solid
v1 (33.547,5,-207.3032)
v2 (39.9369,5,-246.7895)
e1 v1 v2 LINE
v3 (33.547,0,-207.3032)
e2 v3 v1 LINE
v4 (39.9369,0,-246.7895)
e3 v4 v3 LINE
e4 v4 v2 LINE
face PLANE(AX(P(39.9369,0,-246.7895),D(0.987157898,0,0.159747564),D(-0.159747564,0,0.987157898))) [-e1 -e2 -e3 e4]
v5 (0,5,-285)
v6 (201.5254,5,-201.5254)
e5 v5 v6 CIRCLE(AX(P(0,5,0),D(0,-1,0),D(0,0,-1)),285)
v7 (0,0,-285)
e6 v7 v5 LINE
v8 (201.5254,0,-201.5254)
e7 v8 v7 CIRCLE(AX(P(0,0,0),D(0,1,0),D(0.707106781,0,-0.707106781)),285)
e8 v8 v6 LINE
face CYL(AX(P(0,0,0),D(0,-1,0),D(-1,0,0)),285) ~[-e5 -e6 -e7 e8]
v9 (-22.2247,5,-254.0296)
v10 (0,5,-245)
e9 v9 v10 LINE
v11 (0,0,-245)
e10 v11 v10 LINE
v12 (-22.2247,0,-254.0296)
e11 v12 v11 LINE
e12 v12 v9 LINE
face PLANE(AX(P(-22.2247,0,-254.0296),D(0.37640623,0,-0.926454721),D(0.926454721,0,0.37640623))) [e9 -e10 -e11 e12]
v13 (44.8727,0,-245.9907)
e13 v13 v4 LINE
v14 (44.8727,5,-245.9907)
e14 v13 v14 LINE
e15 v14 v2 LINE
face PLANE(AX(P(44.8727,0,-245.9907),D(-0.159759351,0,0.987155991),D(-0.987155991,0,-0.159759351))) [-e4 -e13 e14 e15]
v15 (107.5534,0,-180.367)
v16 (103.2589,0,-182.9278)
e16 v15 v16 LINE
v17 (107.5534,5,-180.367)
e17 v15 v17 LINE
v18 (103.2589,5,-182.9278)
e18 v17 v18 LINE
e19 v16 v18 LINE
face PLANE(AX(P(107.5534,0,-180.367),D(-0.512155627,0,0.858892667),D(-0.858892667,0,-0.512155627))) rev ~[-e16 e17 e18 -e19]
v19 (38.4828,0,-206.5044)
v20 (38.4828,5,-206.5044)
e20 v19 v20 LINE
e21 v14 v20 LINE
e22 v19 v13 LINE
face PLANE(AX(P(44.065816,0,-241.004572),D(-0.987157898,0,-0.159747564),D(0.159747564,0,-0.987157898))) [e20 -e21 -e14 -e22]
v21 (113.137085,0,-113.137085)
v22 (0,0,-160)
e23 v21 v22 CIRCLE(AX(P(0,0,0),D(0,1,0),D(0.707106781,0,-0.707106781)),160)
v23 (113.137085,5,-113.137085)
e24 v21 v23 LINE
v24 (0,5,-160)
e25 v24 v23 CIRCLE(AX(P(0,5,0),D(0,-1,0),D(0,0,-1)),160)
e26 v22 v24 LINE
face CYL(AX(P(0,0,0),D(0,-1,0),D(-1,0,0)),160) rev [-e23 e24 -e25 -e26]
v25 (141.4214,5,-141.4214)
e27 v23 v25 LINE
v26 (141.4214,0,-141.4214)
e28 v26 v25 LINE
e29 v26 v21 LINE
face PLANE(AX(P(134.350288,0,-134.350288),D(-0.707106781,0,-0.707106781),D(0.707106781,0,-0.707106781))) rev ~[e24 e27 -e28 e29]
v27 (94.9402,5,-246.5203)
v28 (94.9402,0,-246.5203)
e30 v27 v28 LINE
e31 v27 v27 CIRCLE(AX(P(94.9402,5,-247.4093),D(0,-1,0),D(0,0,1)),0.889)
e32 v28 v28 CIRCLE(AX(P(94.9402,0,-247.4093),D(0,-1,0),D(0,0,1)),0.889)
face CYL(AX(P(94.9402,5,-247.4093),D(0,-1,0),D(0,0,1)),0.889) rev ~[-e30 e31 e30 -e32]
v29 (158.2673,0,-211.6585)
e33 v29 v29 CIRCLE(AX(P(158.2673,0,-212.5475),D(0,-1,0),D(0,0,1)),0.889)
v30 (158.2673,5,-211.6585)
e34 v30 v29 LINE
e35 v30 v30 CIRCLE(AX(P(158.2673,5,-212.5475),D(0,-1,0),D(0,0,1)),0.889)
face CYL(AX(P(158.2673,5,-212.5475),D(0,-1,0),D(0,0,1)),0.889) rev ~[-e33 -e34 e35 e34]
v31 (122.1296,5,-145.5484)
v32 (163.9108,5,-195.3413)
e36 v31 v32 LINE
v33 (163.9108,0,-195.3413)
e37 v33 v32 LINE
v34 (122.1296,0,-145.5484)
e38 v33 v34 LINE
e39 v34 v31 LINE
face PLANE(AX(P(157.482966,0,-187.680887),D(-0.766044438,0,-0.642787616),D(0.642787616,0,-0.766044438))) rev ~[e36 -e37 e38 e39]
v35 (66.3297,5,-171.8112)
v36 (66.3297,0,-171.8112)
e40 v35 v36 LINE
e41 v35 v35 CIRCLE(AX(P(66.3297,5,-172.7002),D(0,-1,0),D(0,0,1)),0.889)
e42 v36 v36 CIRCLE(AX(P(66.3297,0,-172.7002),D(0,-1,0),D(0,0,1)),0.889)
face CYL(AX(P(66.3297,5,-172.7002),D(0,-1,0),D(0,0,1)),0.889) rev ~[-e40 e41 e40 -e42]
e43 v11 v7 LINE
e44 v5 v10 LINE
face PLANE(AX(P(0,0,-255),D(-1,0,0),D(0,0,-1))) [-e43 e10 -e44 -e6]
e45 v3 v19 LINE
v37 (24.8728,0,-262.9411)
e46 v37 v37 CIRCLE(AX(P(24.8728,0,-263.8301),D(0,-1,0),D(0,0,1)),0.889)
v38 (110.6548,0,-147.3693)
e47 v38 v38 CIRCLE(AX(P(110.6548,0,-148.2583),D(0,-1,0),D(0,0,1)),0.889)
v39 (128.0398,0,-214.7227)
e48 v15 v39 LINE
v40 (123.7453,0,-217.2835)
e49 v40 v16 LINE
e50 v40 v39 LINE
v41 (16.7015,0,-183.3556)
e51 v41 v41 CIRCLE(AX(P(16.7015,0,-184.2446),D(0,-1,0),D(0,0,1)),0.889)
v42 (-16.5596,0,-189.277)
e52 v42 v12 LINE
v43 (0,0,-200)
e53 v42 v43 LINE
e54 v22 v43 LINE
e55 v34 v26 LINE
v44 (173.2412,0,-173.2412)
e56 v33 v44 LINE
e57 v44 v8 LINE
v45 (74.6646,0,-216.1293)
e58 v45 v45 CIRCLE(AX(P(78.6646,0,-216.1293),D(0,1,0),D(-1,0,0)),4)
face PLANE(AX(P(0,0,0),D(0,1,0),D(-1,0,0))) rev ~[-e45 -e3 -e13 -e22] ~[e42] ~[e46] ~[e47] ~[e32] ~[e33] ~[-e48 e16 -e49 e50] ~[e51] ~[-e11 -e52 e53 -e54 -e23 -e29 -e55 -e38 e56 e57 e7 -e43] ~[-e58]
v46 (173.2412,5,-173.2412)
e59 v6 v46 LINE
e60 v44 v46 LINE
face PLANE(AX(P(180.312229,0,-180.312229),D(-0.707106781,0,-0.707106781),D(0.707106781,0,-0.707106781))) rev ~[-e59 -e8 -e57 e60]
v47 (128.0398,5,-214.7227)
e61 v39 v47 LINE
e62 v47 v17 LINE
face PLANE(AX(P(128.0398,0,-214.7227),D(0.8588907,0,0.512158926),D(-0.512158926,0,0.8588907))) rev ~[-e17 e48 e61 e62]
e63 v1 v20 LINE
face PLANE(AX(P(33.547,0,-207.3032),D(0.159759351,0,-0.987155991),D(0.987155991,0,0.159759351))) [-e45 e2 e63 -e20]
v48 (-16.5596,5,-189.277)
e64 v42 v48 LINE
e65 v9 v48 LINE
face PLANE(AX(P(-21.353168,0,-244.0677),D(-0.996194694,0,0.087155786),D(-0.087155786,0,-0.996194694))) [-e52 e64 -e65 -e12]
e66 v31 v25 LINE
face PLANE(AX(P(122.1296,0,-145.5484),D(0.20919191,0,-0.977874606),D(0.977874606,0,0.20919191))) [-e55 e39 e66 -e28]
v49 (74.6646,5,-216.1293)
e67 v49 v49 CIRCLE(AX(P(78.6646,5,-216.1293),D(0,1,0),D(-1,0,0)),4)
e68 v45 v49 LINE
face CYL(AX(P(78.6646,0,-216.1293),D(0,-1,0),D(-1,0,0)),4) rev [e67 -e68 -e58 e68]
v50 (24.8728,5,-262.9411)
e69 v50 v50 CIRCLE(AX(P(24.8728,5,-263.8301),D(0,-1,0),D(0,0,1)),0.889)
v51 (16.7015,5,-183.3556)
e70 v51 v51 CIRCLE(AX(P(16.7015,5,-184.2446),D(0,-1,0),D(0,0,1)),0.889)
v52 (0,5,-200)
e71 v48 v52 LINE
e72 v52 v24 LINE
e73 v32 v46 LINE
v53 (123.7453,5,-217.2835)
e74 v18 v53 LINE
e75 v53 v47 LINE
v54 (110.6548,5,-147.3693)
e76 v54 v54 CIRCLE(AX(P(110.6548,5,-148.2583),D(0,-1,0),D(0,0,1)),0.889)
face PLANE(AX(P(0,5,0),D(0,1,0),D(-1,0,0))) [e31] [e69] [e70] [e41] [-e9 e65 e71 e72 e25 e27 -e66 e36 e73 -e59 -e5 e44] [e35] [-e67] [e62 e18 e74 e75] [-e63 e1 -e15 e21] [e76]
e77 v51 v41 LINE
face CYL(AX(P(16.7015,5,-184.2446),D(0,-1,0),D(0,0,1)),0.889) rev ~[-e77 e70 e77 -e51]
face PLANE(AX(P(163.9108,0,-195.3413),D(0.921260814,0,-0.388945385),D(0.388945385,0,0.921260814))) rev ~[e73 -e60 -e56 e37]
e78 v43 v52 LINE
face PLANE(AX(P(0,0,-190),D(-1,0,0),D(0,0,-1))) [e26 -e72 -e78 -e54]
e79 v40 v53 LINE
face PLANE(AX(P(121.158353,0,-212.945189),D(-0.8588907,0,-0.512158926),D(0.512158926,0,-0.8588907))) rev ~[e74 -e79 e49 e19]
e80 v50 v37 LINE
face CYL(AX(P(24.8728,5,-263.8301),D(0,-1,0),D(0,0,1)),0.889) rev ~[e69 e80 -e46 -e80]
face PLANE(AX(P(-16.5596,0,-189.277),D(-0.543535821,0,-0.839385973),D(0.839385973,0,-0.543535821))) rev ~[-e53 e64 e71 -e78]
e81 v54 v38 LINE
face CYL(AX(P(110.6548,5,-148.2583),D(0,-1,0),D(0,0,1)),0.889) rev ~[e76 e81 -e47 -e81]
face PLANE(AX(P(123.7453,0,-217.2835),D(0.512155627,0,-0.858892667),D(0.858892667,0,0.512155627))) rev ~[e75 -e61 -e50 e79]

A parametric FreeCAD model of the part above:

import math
import FreeCAD as App
import Part
import Sketcher

V = App.Vector
Q = App.Units.Quantity

doc = App.newDocument("Part")
body = doc.addObject("PartDesign::Body", "Body")

# Sketch on XZ plane
sketch1 = body.newObject("Sketcher::SketchObject", "Sketch")
sketch1.AttachmentSupport = (doc.getObject("XZ_Plane"), [""])
sketch1.MapMode = "FlatFace"
sketch1.addGeometry([
    Part.ArcOfCircle(Part.Circle(V(0, 0, 0), V(0, 0, 1), 285), math.radians(-90), math.radians(-45)),  # 0
    Part.LineSegment(V(0, -285, 0), V(0, -245, 0)),  # 1
    Part.LineSegment(V(0, -245, 0), V(-22.2247, -254.0296, 0)),  # 2
    Part.LineSegment(V(-22.2247, -254.0296, 0), V(-16.5596, -189.277, 0)),  # 3
    Part.LineSegment(V(-16.5596, -189.277, 0), V(0, -200, 0)),  # 4
    Part.LineSegment(V(0, -200, 0), V(0, -160, 0)),  # 5
    Part.ArcOfCircle(Part.Circle(V(0, 0, 0), V(0, 0, 1), 160), math.radians(-90), math.radians(-45)),  # 6
    Part.LineSegment(V(113.137085, -113.137085, 0), V(141.4214, -141.4214, 0)),  # 7
    Part.LineSegment(V(141.4214, -141.4214, 0), V(122.1296, -145.5484, 0)),  # 8
    Part.LineSegment(V(122.1296, -145.5484, 0), V(163.9108, -195.3413, 0)),  # 9
    Part.LineSegment(V(163.9108, -195.3413, 0), V(173.2412, -173.2412, 0)),  # 10
    Part.LineSegment(V(173.2412, -173.2412, 0), V(201.5254, -201.5254, 0)),  # 11
    Part.LineSegment(V(128.0398, -214.7227, 0), V(107.5534, -180.367, 0)),  # 12
    Part.LineSegment(V(107.5534, -180.367, 0), V(103.2589, -182.9278, 0)),  # 13
    Part.LineSegment(V(103.2589, -182.9278, 0), V(123.7453, -217.2835, 0)),  # 14
    Part.LineSegment(V(123.7453, -217.2835, 0), V(128.0398, -214.7227, 0)),  # 15
    Part.LineSegment(V(44.8727, -245.9907, 0), V(38.4828, -206.5044, 0)),  # 16
    Part.LineSegment(V(38.4828, -206.5044, 0), V(33.547, -207.3032, 0)),  # 17
    Part.LineSegment(V(33.547, -207.3032, 0), V(39.9369, -246.7895, 0)),  # 18
    Part.LineSegment(V(39.9369, -246.7895, 0), V(44.8727, -245.9907, 0)),  # 19
    Part.Circle(V(78.6646, -216.1293, 0), V(0, 0, 1), 4),  # 20
], False)
sketch1.addConstraint([
    Sketcher.Constraint("Coincident", 0, 1, 1, 1),
    Sketcher.Constraint("Coincident", 1, 2, 2, 1),
    Sketcher.Constraint("Coincident", 2, 2, 3, 1),
    Sketcher.Constraint("Coincident", 3, 2, 4, 1),
    Sketcher.Constraint("Coincident", 4, 2, 5, 1),
    Sketcher.Constraint("Coincident", 5, 2, 6, 1),
    Sketcher.Constraint("Coincident", 6, 2, 7, 1),
    Sketcher.Constraint("Coincident", 7, 2, 8, 1),
    Sketcher.Constraint("Coincident", 8, 2, 9, 1),
    Sketcher.Constraint("Coincident", 9, 2, 10, 1),
    Sketcher.Constraint("Coincident", 10, 2, 11, 1),
    Sketcher.Constraint("Coincident", 11, 2, 0, 2),
    Sketcher.Constraint("Coincident", 12, 2, 13, 1),
    Sketcher.Constraint("Coincident", 13, 2, 14, 1),
    Sketcher.Constraint("Coincident", 14, 2, 15, 1),
    Sketcher.Constraint("Coincident", 15, 2, 12, 1),
    Sketcher.Constraint("Coincident", 16, 2, 17, 1),
    Sketcher.Constraint("Coincident", 17, 2, 18, 1),
    Sketcher.Constraint("Coincident", 18, 2, 19, 1),
    Sketcher.Constraint("Coincident", 19, 2, 16, 1),
    Sketcher.Constraint("Vertical", 1),
    Sketcher.Constraint("Vertical", 5),
    Sketcher.Constraint("Coincident", 0, 3, -1, 1),
    Sketcher.Constraint("Coincident", 6, 3, -1, 1),
    Sketcher.Constraint("PointOnObject", 0, 1, -2),
    Sketcher.Constraint("PointOnObject", 4, 2, -2),
    Sketcher.Constraint("Diameter", 20, Q("8 mm")),
    Sketcher.Constraint("Radius", 0, Q("285 mm")),
    Sketcher.Constraint("Radius", 6, Q("160 mm")),
    Sketcher.Constraint("DistanceY", 1, 1, 1, 2, Q("40 mm")),
    Sketcher.Constraint("DistanceY", 5, 1, 5, 2, Q("40 mm")),
    Sketcher.Constraint("Distance", 7, Q("40 mm")),
    Sketcher.Constraint("Distance", 11, Q("40 mm")),
    Sketcher.Constraint("Distance", 12, Q("40 mm")),
    Sketcher.Constraint("Distance", 13, Q("5 mm")),
    Sketcher.Constraint("Distance", 14, Q("40 mm")),
    Sketcher.Constraint("Distance", 15, Q("5 mm")),
    Sketcher.Constraint("Distance", 16, Q("40 mm")),
    Sketcher.Constraint("Distance", 17, Q("5 mm")),
    Sketcher.Constraint("Distance", 18, Q("40 mm")),
    Sketcher.Constraint("Distance", 19, Q("5 mm")),
    Sketcher.Constraint("Distance", 3, Q("65 mm")),
    Sketcher.Constraint("Distance", 9, Q("65 mm")),
    Sketcher.Constraint("DistanceY", 9, 2, 10, 2, Q("22.1 mm")),
    Sketcher.Constraint("DistanceY", 3, 2, 6, 2, Q("76.14 mm")),
    Sketcher.Constraint("DistanceY", 9, 2, 7, 2, Q("53.92 mm")),
    Sketcher.Constraint("DistanceX", 17, 2, 18, 2, Q("6.39 mm")),
    Sketcher.Constraint("Distance", 2, Q("23.989 mm")),
    Sketcher.Constraint("Distance", 10, Q("23.989 mm")),
    Sketcher.Constraint("DistanceY", 3, 2, -1, 1, Q("189.277 mm")),
    Sketcher.Constraint("DistanceY", 12, 2, -1, 1, Q("180.367 mm")),
    Sketcher.Constraint("DistanceX", -1, 1, 13, 2, Q("103.259 mm")),
    Sketcher.Constraint("DistanceX", -1, 1, 17, 2, Q("33.547 mm")),
    Sketcher.Constraint("DistanceX", 2, 2, 3, 2, Q("5.665 mm")),
    Sketcher.Constraint("DistanceY", 20, 3, 7, 2, Q("74.708 mm")),
    Sketcher.Constraint("DistanceX", 3, 2, 7, 2, Q("157.981 mm")),
    Sketcher.Constraint("DistanceY", 8, 2, 7, 2, Q("4.127 mm")),
    Sketcher.Constraint("DistanceX", 20, 3, 8, 2, Q("43.465 mm")),
    Sketcher.Constraint("DistanceY", 11, 2, 9, 2, Q("6.184 mm")),
    Sketcher.Constraint("DistanceX", 12, 2, 7, 2, Q("33.868 mm")),
    Sketcher.Constraint("DistanceX", 12, 2, 14, 2, Q("16.192 mm")),
    Sketcher.Constraint("DistanceY", 20, 3, 16, 2, Q("9.625 mm")),
    Sketcher.Constraint("DistanceY", 20, 3, 17, 2, Q("8.826 mm")),
])
pad1 = body.newObject("PartDesign::Pad", "Pad")
pad1.Profile = sketch1
pad1.Length = 5
pad1.Reversed = True

# Sketch on XZ plane
sketch2 = body.newObject("Sketcher::SketchObject", "Sketch001")
sketch2.AttachmentSupport = (doc.getObject("XZ_Plane"), [""])
sketch2.MapMode = "FlatFace"
sketch2.AttachmentOffset = App.Placement(V(0, 0, -5), App.Rotation())
sketch2.addGeometry([
    Part.Circle(V(94.9402, -247.4093, 0), V(0, 0, 1), 0.889),  # 0
    Part.Circle(V(66.3297, -172.7002, 0), V(0, 0, 1), 0.889),  # 1
    Part.Circle(V(16.7015, -184.2446, 0), V(0, 0, 1), 0.889),  # 2
    Part.Circle(V(24.8728, -263.8301, 0), V(0, 0, 1), 0.889),  # 3
    Part.Circle(V(110.6548, -148.2583, 0), V(0, 0, 1), 0.889),  # 4
    Part.Circle(V(158.2673, -212.5475, 0), V(0, 0, 1), 0.889),  # 5
], False)
sketch2.addConstraint([
    Sketcher.Constraint("Equal", 0, 1),
    Sketcher.Constraint("Equal", 1, 2),
    Sketcher.Constraint("Equal", 2, 3),
    Sketcher.Constraint("Equal", 3, 4),
    Sketcher.Constraint("Equal", 4, 5),
    Sketcher.Constraint("Diameter", 0, Q("1.778 mm")),
    Sketcher.Constraint("DistanceY", 3, 3, -1, 1, Q("263.83 mm")),
    Sketcher.Constraint("DistanceY", 3, 3, 1, 3, Q("91.13 mm")),
    Sketcher.Constraint("DistanceY", 0, 3, 1, 3, Q("74.709 mm")),
    Sketcher.Constraint("DistanceX", 3, 3, 1, 3, Q("41.457 mm")),
    Sketcher.Constraint("DistanceX", 1, 3, 4, 3, Q("44.325 mm")),
    Sketcher.Constraint("DistanceY", 1, 3, 4, 3, Q("24.442 mm")),
    Sketcher.Constraint("DistanceX", 0, 3, 5, 3, Q("63.327 mm")),
    Sketcher.Constraint("DistanceY", 5, 3, 2, 3, Q("28.303 mm")),
    Sketcher.Constraint("DistanceX", -1, 1, 0, 3, Q("94.9402 mm")),
    Sketcher.Constraint("DistanceX", -1, 1, 1, 3, Q("66.3297 mm")),
    Sketcher.Constraint("DistanceX", -1, 1, 2, 3, Q("16.7015 mm")),
    Sketcher.Constraint("DistanceY", 2, 3, -1, 1, Q("184.2446 mm")),
])
doc.recompute()
hole = body.newObject("PartDesign::Hole", "Hole")
hole.Profile = sketch2
hole.ThreadType = "None"
hole.Diameter = 1.778
hole.DepthType = "ThroughAll"
hole.Reversed = True

doc.recompute()
